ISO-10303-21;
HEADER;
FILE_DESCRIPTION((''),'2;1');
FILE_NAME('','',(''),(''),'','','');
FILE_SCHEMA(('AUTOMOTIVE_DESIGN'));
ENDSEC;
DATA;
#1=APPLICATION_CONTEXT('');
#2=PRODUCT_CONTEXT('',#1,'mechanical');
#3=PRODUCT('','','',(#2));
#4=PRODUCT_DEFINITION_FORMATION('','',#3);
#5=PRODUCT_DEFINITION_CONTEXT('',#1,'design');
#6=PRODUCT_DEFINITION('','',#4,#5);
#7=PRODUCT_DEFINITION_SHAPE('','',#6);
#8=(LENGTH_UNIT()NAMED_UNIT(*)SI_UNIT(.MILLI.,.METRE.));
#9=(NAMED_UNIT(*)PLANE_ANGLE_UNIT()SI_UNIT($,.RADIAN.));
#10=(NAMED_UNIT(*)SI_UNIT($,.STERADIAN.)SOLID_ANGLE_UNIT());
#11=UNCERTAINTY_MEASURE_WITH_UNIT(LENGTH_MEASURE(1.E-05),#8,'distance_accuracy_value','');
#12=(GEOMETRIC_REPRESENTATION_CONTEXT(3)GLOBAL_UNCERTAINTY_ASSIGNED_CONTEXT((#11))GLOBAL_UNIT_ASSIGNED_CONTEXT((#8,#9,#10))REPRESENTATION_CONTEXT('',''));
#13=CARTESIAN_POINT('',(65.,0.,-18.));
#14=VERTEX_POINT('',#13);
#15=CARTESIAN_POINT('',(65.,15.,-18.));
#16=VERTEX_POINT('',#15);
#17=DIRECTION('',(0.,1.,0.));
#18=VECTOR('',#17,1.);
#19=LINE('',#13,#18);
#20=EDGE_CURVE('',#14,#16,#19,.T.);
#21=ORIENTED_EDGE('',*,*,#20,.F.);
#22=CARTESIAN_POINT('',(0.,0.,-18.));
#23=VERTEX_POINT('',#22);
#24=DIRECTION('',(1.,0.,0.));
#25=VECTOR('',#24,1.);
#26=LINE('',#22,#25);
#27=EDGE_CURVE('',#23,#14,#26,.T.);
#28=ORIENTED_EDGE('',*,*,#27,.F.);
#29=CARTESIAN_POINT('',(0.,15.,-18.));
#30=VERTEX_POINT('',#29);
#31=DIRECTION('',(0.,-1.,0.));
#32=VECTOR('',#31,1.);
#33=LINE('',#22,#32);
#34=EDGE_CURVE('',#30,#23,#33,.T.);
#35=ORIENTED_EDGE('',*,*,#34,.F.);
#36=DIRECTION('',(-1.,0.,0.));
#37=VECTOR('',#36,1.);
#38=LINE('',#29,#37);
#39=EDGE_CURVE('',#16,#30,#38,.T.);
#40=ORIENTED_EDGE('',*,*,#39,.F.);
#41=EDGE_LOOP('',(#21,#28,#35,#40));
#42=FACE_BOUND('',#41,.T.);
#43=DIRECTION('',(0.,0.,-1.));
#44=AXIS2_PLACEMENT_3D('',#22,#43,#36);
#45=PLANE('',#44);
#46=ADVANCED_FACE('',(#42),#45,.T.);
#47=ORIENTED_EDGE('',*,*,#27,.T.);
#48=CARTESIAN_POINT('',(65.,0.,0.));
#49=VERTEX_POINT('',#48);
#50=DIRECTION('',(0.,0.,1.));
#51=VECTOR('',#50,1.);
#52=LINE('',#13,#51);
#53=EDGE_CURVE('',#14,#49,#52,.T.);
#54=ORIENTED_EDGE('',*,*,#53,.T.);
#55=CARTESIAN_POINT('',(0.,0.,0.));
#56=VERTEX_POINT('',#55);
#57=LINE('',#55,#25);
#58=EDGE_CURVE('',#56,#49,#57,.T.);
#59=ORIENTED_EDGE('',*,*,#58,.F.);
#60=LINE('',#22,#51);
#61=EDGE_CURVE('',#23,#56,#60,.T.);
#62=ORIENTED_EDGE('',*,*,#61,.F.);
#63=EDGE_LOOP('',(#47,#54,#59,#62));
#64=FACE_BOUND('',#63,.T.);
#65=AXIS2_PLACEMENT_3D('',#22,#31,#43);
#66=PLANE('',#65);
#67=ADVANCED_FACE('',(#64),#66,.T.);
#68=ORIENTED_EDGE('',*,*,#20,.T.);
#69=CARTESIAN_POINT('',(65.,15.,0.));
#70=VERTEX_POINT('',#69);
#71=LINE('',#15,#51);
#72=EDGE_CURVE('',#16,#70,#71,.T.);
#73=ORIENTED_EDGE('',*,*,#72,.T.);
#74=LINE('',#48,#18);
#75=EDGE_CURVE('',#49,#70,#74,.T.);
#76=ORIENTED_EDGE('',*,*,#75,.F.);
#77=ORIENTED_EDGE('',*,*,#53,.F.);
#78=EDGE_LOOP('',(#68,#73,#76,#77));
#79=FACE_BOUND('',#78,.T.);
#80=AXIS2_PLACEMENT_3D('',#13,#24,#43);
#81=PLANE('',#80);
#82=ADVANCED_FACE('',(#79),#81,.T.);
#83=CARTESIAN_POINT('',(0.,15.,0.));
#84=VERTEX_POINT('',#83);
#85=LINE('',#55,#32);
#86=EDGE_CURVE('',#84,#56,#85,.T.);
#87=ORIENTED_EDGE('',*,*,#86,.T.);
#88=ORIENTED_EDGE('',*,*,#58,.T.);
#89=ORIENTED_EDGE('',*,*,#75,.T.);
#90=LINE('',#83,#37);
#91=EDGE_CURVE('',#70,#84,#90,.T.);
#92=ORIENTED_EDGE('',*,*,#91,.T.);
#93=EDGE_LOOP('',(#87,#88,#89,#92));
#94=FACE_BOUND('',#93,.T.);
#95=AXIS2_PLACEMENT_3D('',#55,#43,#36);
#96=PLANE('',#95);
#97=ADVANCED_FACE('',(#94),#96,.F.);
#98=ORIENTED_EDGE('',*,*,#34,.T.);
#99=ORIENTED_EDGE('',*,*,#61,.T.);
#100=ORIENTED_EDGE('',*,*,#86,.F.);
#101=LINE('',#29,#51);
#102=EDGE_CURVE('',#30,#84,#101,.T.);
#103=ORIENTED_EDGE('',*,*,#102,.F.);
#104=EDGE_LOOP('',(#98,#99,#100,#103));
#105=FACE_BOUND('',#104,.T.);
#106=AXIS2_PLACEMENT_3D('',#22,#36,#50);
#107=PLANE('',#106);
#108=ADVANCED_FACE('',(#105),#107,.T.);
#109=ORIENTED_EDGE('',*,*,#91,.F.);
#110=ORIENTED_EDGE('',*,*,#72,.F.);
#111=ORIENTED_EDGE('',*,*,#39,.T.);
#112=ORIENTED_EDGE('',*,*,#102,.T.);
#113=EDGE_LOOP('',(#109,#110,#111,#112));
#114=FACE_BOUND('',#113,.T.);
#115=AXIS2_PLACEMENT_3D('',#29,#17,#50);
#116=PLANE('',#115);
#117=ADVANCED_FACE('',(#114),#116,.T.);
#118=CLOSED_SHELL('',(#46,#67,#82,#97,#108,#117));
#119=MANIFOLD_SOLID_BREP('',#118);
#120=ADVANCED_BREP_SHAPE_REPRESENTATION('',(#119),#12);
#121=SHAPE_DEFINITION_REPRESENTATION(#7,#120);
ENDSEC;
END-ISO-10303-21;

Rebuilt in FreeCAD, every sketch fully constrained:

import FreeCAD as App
import Part
import Sketcher
Q = App.Units.Quantity


def add_polygon(sketch, points):
    """Adds a closed chain of lines whose ends are joined by coincident constraints."""
    first, n = sketch.GeometryCount, len(points)
    for a, b in zip(points, points[1:] + points[:1]):
        sketch.addGeometry(Part.LineSegment(App.Vector(*a, 0), App.Vector(*b, 0)), False)
    for i in range(n):
        sketch.addConstraint(Sketcher.Constraint("Coincident", first + i, 2, first + (i + 1) % n, 1))

doc = App.newDocument("Part")
params = doc.addObject("Spreadsheet::Sheet", "Params")
for row, (alias, value) in enumerate([
    ("sketch1_width", "65 mm"),
    ("sketch1_height", "15 mm"),
    ("pad1_length", "18 mm"),
], start=1):
    params.set(f"A{row}", alias)
    params.set(f"B{row}", "=" + value)
    params.setAlias(f"B{row}", alias)

body = doc.addObject("PartDesign::Body", "Body")

# Sketch on XY plane
sketch1 = doc.addObject("Sketcher::SketchObject", "Sketch")
body.addObject(sketch1)
sketch1.AttachmentSupport = (doc.XY_Plane, [""])
sketch1.MapMode = "FlatFace"
add_polygon(sketch1, [(0, 15), (0, 0), (65, 0), (65, 15)])  # lines 0-3
sketch1.addConstraint([
    Sketcher.Constraint("Vertical", 0),
    Sketcher.Constraint("Horizontal", 1),
    Sketcher.Constraint("Vertical", 2),
    Sketcher.Constraint("Horizontal", 3),
    Sketcher.Constraint("Coincident", 0, 2, -1, 1),
    Sketcher.Constraint("DistanceX", 1, 1, 1, 2, Q("65 mm")),
    Sketcher.Constraint("DistanceY", 0, 2, 0, 1, Q("15 mm")),
])
sketch1.setExpression("Constraints[9]", "Params.sketch1_width")
sketch1.setExpression("Constraints[10]", "Params.sketch1_height")
pad1 = doc.addObject("PartDesign::Pad", "Pad")
body.addObject(pad1)
pad1.Profile = sketch1
pad1.setExpression("Length", "Params.pad1_length")
pad1.Reversed = True

doc.recompute()
